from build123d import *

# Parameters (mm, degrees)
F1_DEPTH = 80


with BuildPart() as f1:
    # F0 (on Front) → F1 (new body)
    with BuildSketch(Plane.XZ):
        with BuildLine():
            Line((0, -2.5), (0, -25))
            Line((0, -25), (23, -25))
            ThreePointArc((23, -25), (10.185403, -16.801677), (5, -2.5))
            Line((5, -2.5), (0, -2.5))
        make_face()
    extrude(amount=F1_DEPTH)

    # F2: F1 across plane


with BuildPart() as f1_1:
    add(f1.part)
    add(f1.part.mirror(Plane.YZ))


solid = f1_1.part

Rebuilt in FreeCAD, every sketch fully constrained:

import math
import FreeCAD as App
import Part
import Sketcher

doc = App.newDocument("Part")
params = doc.addObject("Spreadsheet::Sheet", "Params")
for row, (alias, value) in enumerate([
    ("sketch1_width", "23 mm"),
    ("sketch1_width2", "5 mm"),
    ("sketch1_height", "22.5 mm"),
    ("pad1_length", "80 mm"),
], start=1):
    params.set(f"A{row}", alias)
    params.set(f"B{row}", "=" + value)
    params.setAlias(f"B{row}", alias)

body = doc.addObject("PartDesign::Body", "Body")

# Sketch on XZ plane
sketch1 = body.newObject("Sketcher::SketchObject", "Sketch")
sketch1.AttachmentSupport = (doc.getObject("XZ_Plane"), [""])
sketch1.MapMode = "FlatFace"
sketch1.addGeometry([
    Part.LineSegment(App.Vector(0, -2.5, 0), App.Vector(0, -25, 0)),
    Part.LineSegment(App.Vector(0, -25, 0), App.Vector(23, -25, 0)),
    Part.ArcOfCircle(Part.Circle(App.Vector(28.681939, -2.004449, 0), App.Vector(0, 0, 1), 23.687123), math.radians(-178.801245), math.radians(-103.879139)),
    Part.LineSegment(App.Vector(5, -2.5, 0), App.Vector(0, -2.5, 0)),
], False)
sketch1.addConstraint([
    Sketcher.Constraint("Coincident", 0, 2, 1, 1),
    Sketcher.Constraint("Coincident", 1, 2, 2, 2),
    Sketcher.Constraint("Coincident", 2, 1, 3, 1),
    Sketcher.Constraint("Coincident", 3, 2, 0, 1),
    Sketcher.Constraint("Vertical", 0),
    Sketcher.Constraint("Horizontal", 1),
    Sketcher.Constraint("Horizontal", 3),
    Sketcher.Constraint("PointOnObject", 0, 2, -2),
    Sketcher.Constraint("DistanceX", 1, 1, 1, 2, 23.0),
    Sketcher.Constraint("DistanceX", 3, 2, 3, 1, 5.0),
    Sketcher.Constraint("DistanceY", 0, 2, 0, 1, 22.5),
    Sketcher.Constraint("DistanceY", 0, 2, -1, 1, 25.0),
    Sketcher.Constraint("Radius", 2, 23.687123),
])
sketch1.setExpression("Constraints[8]", "Params.sketch1_width")
sketch1.setExpression("Constraints[9]", "Params.sketch1_width2")
sketch1.setExpression("Constraints[10]", "Params.sketch1_height")
pad1 = body.newObject("PartDesign::Pad", "Pad")
pad1.Profile = sketch1
pad1.setExpression("Length", "Params.pad1_length")
body2 = doc.addObject("PartDesign::Body", "Body001")
doc.recompute()

body2.BaseFeature = body
doc.recompute()

mirroring = doc.addObject("Part::Mirroring", "Mirroring")
mirroring.Source = body
mirroring.Base = App.Vector(0, 0, 0)
mirroring.Normal = App.Vector(1, 0, 0)
body3 = doc.addObject("PartDesign::Body", "Body002")
body3.BaseFeature = mirroring
boolean = body2.newObject("PartDesign::Boolean", "Boolean")
boolean.Type = "Fuse"
boolean.addObjects([body3])
doc.recompute()
mirroring.Visibility = False

doc.recompute()
